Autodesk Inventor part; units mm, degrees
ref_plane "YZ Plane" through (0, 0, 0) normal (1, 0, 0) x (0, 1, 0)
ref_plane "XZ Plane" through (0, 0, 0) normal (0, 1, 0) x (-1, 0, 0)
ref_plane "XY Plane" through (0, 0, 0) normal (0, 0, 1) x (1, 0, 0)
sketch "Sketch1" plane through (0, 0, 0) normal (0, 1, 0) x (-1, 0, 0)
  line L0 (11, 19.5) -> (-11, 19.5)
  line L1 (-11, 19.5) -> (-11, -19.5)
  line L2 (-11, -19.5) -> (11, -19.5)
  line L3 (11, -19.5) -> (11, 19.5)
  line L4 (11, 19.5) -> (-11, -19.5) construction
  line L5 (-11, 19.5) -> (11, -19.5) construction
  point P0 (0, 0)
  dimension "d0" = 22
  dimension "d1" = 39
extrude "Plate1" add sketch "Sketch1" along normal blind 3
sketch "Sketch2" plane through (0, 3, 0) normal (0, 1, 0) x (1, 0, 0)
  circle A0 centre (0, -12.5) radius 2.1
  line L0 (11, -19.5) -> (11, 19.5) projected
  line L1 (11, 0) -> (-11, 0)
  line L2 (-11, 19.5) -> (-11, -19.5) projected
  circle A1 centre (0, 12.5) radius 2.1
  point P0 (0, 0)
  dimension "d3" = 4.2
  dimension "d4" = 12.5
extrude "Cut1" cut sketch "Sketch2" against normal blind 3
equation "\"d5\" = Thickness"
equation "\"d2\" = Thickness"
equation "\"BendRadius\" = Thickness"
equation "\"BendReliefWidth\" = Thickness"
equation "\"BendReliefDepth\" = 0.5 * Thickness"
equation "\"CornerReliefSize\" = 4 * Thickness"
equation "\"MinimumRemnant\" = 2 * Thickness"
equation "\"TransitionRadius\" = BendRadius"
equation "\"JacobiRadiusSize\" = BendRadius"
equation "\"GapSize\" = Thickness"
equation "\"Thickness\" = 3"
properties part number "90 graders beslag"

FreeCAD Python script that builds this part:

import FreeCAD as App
import Part
import Sketcher


def add_polygon(sketch, points):
    """Adds a closed chain of lines whose ends are joined by coincident constraints."""
    first, n = sketch.GeometryCount, len(points)
    for a, b in zip(points, points[1:] + points[:1]):
        sketch.addGeometry(Part.LineSegment(App.Vector(*a, 0), App.Vector(*b, 0)), False)
    for i in range(n):
        sketch.addConstraint(Sketcher.Constraint("Coincident", first + i, 2, first + (i + 1) % n, 1))

doc = App.newDocument("Part")
body = doc.addObject("PartDesign::Body", "Body")

# Sketch on XZ plane
sketch1 = doc.addObject("Sketcher::SketchObject", "Sketch")
body.addObject(sketch1)
sketch1.AttachmentSupport = (doc.XZ_Plane, [""])
sketch1.MapMode = "FlatFace"
add_polygon(sketch1, [(-11, -19.5), (-11, 19.5), (11, 19.5), (11, -19.5)])  # lines 0-3
sketch1.addConstraint([
    Sketcher.Constraint("Vertical", 0),
    Sketcher.Constraint("Horizontal", 1),
    Sketcher.Constraint("Vertical", 2),
    Sketcher.Constraint("Horizontal", 3),
    Sketcher.Constraint("Symmetric", 0, 2, 2, 2, -1, 1),
    Sketcher.Constraint("DistanceX", 1, 1, 1, 2, 22.0),
    Sketcher.Constraint("DistanceY", 0, 1, 0, 2, 39.0),
])
pad1 = doc.addObject("PartDesign::Pad", "Pad")
body.addObject(pad1)
pad1.Profile = sketch1
pad1.Length = 3
pad1.Reversed = True

# Sketch on XZ plane
sketch2 = doc.addObject("Sketcher::SketchObject", "Sketch001")
body.addObject(sketch2)
sketch2.AttachmentSupport = (doc.XZ_Plane, [""])
sketch2.MapMode = "FlatFace"
sketch2.AttachmentOffset = App.Placement(App.Vector(0, 0, -3), App.Rotation())
sketch2.addGeometry([
    Part.Circle(App.Vector(0, 12.5, 0), App.Vector(0, 0, 1), 2.1),
    Part.Circle(App.Vector(0, -12.5, 0), App.Vector(0, 0, 1), 2.1),
], False)
sketch2.addConstraint([
    Sketcher.Constraint("Equal", 0, 1),
    Sketcher.Constraint("Symmetric", 0, 3, 1, 3, -1, 1),
    Sketcher.Constraint("PointOnObject", 0, 3, -2),
    Sketcher.Constraint("Diameter", 0, 4.2),
    Sketcher.Constraint("DistanceY", -1, 1, 0, 3, 12.5),
])
pocket1 = doc.addObject("PartDesign::Pocket", "Pocket")
body.addObject(pocket1)
pocket1.Profile = sketch2
pocket1.Length = 3
pocket1.Reversed = True

doc.recompute()
